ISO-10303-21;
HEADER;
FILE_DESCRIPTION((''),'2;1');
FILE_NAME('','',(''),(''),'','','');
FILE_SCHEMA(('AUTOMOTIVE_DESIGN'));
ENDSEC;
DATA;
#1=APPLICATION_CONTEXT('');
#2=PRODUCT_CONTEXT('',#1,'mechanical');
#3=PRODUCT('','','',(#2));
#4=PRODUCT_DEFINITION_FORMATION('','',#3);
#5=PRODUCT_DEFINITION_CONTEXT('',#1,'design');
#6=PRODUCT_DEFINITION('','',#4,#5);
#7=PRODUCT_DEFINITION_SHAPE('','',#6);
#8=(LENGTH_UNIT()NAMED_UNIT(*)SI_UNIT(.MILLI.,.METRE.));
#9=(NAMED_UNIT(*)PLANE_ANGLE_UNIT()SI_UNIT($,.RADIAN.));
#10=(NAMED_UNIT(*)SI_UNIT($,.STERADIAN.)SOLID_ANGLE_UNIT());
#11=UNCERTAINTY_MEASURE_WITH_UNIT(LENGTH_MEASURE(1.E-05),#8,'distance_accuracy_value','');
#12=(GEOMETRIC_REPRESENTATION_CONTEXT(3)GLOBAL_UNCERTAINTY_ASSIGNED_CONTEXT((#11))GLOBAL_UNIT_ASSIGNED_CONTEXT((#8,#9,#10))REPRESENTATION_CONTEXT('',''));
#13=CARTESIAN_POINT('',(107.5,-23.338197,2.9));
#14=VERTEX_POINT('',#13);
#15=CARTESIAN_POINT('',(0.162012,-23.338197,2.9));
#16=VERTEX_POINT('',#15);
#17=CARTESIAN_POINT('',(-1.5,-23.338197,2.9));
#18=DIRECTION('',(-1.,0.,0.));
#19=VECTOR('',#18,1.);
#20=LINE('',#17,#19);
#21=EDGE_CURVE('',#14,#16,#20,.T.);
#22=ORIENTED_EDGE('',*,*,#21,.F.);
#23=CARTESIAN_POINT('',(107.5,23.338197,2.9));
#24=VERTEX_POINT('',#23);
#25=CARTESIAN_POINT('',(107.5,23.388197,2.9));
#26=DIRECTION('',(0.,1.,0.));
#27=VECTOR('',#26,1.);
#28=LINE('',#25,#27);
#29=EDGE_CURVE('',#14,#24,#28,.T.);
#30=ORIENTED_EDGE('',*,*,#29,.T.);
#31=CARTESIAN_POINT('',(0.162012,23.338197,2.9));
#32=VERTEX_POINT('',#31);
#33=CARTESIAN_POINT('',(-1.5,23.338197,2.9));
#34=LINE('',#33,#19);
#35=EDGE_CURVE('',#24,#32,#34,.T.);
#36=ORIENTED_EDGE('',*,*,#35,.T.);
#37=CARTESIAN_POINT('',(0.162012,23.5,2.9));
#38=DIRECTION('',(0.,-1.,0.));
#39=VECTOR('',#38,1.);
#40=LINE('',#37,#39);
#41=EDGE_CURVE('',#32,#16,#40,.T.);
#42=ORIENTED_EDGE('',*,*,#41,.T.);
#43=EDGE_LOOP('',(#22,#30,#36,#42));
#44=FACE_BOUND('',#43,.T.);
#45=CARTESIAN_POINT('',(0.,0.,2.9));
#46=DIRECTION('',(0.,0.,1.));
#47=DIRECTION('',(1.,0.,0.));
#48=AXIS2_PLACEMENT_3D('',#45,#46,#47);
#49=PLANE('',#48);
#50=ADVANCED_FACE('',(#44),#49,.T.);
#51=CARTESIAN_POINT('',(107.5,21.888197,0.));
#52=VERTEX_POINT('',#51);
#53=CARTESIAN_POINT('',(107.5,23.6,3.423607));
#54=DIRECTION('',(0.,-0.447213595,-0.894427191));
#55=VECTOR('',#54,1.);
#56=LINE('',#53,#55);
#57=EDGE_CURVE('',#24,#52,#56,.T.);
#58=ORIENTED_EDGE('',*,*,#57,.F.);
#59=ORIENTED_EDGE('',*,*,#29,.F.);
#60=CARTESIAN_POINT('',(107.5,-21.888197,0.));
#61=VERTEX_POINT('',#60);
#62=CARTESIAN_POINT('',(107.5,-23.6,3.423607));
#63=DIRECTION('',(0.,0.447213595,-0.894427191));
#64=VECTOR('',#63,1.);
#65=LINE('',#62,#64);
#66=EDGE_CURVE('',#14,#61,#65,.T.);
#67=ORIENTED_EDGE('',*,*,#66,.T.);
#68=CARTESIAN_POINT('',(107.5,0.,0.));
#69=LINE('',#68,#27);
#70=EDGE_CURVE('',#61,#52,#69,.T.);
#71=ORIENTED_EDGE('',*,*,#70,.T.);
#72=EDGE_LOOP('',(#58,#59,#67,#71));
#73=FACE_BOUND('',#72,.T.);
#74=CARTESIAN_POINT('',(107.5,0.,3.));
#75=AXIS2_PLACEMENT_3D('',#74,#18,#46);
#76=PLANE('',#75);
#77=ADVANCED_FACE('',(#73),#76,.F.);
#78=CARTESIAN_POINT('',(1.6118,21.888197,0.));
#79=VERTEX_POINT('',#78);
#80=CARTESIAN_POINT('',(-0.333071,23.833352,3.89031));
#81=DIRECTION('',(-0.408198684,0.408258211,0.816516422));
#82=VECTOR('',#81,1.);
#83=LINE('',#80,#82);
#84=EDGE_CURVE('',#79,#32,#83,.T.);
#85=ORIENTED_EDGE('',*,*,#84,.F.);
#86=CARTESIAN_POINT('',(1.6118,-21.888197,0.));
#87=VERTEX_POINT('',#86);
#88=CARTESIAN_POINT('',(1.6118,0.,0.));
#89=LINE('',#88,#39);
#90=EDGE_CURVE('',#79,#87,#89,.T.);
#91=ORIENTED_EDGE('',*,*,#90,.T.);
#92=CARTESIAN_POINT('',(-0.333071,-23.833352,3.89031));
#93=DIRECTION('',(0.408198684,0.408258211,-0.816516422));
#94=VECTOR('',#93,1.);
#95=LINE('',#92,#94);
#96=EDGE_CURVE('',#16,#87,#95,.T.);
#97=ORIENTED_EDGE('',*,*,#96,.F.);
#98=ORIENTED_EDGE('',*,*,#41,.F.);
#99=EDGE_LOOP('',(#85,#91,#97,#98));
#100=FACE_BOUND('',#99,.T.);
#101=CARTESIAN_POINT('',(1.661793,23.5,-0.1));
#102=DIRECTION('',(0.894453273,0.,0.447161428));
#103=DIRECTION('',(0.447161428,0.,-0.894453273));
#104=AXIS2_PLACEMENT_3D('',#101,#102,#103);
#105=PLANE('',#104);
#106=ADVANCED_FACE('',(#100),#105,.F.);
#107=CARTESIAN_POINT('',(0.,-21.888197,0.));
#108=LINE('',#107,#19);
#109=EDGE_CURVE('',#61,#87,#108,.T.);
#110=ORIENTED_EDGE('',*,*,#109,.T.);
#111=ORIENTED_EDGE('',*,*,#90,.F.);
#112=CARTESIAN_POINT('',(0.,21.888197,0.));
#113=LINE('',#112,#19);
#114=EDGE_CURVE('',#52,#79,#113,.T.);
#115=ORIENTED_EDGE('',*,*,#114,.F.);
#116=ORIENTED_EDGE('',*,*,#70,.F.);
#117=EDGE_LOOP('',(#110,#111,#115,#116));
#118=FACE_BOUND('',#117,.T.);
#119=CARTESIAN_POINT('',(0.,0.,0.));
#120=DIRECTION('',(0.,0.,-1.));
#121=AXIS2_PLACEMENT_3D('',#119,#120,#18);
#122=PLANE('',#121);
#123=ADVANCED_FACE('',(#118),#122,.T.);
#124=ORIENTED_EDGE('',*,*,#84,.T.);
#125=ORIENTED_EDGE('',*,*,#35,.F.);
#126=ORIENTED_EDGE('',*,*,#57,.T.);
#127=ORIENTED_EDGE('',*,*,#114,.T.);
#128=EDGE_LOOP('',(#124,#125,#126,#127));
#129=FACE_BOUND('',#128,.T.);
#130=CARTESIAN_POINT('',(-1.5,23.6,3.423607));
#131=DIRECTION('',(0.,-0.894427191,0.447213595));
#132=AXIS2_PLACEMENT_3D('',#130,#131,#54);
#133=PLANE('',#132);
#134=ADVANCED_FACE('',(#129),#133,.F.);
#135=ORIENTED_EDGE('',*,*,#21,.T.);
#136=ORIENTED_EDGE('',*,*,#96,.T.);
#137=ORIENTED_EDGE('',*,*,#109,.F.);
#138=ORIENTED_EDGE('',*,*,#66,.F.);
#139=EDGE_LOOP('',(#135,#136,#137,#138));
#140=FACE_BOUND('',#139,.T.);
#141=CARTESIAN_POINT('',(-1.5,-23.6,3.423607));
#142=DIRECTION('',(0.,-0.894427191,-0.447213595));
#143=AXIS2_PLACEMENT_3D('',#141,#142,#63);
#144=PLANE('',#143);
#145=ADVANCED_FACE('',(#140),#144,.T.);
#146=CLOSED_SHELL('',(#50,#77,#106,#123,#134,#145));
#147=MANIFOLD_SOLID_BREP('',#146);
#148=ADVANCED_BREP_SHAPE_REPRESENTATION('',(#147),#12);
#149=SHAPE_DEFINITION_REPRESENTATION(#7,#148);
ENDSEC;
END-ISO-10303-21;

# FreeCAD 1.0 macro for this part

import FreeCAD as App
import Part
import Sketcher
from FreeCAD import Vector


def add_polygon(sketch, points):
    """Adds a closed chain of lines whose ends are joined by coincident constraints."""
    first, n = sketch.GeometryCount, len(points)
    for a, b in zip(points, points[1:] + points[:1]):
        sketch.addGeometry(Part.LineSegment(App.Vector(*a, 0), App.Vector(*b, 0)), False)
    for i in range(n):
        sketch.addConstraint(Sketcher.Constraint("Coincident", first + i, 2, first + (i + 1) % n, 1))

doc = App.newDocument("Part")
body = doc.addObject("PartDesign::Body", "Body")

# Sketch on XY plane
sketch1 = body.newObject("Sketcher::SketchObject", "Sketch")
sketch1.AttachmentSupport = (doc.getObject("XY_Plane"), [""])
sketch1.MapMode = "FlatFace"
add_polygon(sketch1, [(0, 23.5), (0, 0), (107.5, 0), (107.5, 23.5)])  # lines 0-3
sketch1.addConstraint([
    Sketcher.Constraint("Vertical", 0),
    Sketcher.Constraint("Horizontal", 1),
    Sketcher.Constraint("Vertical", 2),
    Sketcher.Constraint("Horizontal", 3),
    Sketcher.Constraint("Coincident", 0, 2, -1, 1),
    Sketcher.Constraint("DistanceX", 1, 1, 1, 2, 107.5),
    Sketcher.Constraint("DistanceY", 0, 2, 0, 1, 23.5),
])
pad1 = body.newObject("PartDesign::Pad", "Pad")
pad1.Profile = sketch1
pad1.Length = 3

# Sketch on YZ plane
sketch2 = body.newObject("Sketcher::SketchObject", "Sketch001")
sketch2.AttachmentSupport = (doc.getObject("YZ_Plane"), [""])
sketch2.MapMode = "FlatFace"
sketch2.AttachmentOffset = App.Placement(Vector(0, 0, 107.5), App.Rotation())
add_polygon(sketch2, [(23.6, 3.423607), (21.838197, -0.1), (23.6, -0.1)])  # lines 0-2
sketch2.addConstraint([
    Sketcher.Constraint("Horizontal", 1),
    Sketcher.Constraint("Vertical", 2),
    Sketcher.Constraint("DistanceY", 0, 2, -1, 1, 0.1),
    Sketcher.Constraint("DistanceX", -1, 1, 1, 2, 23.6),
    Sketcher.Constraint("DistanceX", 1, 1, 1, 2, 1.761803),
    Sketcher.Constraint("DistanceY", 2, 1, 2, 2, 3.523607),
])
pocket1 = body.newObject("PartDesign::Pocket", "Pocket")
pocket1.Profile = sketch2
pocket1.Length = 109

# Sketch on XZ plane
sketch3 = body.newObject("Sketcher::SketchObject", "Sketch002")
sketch3.AttachmentSupport = (doc.getObject("XZ_Plane"), [""])
sketch3.MapMode = "FlatFace"
add_polygon(sketch3, [(-0.1, -0.1), (1.661793, -0.1), (-0.1, 3.4241)])  # lines 0-2
sketch3.addConstraint([
    Sketcher.Constraint("Horizontal", 0),
    Sketcher.Constraint("Vertical", 2),
    Sketcher.Constraint("DistanceY", 0, 2, -1, 1, 0.1),
    Sketcher.Constraint("DistanceX", 1, 2, -1, 1, 0.1),
    Sketcher.Constraint("DistanceY", 2, 2, 2, 1, 3.5241),
    Sketcher.Constraint("Distance", 1, 3.939948),
])
pocket2 = body.newObject("PartDesign::Pocket", "Pocket001")
pocket2.Profile = sketch3
pocket2.Length = 23.5

# Sketch on XY plane
sketch4 = body.newObject("Sketcher::SketchObject", "Sketch003")
sketch4.AttachmentSupport = (doc.getObject("XY_Plane"), [""])
sketch4.MapMode = "FlatFace"
sketch4.AttachmentOffset = App.Placement(Vector(0, 0, 3), App.Rotation())
add_polygon(sketch4, [(0.112019, 23.388197), (0.112019, 0), (107.5, 0), (107.5, 23.388197)])  # lines 0-3
sketch4.addConstraint([
    Sketcher.Constraint("Vertical", 0),
    Sketcher.Constraint("Horizontal", 1),
    Sketcher.Constraint("Vertical", 2),
    Sketcher.Constraint("Horizontal", 3),
    Sketcher.Constraint("PointOnObject", 0, 2, -1),
    Sketcher.Constraint("DistanceX", -1, 1, 1, 2, 107.5),
    Sketcher.Constraint("DistanceX", 1, 1, 1, 2, 107.387981),
    Sketcher.Constraint("DistanceY", 0, 2, 0, 1, 23.388197),
])
pocket3 = body.newObject("PartDesign::Pocket", "Pocket002")
pocket3.Profile = sketch4
pocket3.Length = 0.1
doc.recompute()

mirrored = body.newObject("PartDesign::Mirrored", "Mirrored")
mirrored.Originals = [pad1, pocket1, pocket2, pocket3]
mirrored.MirrorPlane = (doc.getObject("XZ_Plane"), [""])
body.Tip = mirrored

doc.recompute()
